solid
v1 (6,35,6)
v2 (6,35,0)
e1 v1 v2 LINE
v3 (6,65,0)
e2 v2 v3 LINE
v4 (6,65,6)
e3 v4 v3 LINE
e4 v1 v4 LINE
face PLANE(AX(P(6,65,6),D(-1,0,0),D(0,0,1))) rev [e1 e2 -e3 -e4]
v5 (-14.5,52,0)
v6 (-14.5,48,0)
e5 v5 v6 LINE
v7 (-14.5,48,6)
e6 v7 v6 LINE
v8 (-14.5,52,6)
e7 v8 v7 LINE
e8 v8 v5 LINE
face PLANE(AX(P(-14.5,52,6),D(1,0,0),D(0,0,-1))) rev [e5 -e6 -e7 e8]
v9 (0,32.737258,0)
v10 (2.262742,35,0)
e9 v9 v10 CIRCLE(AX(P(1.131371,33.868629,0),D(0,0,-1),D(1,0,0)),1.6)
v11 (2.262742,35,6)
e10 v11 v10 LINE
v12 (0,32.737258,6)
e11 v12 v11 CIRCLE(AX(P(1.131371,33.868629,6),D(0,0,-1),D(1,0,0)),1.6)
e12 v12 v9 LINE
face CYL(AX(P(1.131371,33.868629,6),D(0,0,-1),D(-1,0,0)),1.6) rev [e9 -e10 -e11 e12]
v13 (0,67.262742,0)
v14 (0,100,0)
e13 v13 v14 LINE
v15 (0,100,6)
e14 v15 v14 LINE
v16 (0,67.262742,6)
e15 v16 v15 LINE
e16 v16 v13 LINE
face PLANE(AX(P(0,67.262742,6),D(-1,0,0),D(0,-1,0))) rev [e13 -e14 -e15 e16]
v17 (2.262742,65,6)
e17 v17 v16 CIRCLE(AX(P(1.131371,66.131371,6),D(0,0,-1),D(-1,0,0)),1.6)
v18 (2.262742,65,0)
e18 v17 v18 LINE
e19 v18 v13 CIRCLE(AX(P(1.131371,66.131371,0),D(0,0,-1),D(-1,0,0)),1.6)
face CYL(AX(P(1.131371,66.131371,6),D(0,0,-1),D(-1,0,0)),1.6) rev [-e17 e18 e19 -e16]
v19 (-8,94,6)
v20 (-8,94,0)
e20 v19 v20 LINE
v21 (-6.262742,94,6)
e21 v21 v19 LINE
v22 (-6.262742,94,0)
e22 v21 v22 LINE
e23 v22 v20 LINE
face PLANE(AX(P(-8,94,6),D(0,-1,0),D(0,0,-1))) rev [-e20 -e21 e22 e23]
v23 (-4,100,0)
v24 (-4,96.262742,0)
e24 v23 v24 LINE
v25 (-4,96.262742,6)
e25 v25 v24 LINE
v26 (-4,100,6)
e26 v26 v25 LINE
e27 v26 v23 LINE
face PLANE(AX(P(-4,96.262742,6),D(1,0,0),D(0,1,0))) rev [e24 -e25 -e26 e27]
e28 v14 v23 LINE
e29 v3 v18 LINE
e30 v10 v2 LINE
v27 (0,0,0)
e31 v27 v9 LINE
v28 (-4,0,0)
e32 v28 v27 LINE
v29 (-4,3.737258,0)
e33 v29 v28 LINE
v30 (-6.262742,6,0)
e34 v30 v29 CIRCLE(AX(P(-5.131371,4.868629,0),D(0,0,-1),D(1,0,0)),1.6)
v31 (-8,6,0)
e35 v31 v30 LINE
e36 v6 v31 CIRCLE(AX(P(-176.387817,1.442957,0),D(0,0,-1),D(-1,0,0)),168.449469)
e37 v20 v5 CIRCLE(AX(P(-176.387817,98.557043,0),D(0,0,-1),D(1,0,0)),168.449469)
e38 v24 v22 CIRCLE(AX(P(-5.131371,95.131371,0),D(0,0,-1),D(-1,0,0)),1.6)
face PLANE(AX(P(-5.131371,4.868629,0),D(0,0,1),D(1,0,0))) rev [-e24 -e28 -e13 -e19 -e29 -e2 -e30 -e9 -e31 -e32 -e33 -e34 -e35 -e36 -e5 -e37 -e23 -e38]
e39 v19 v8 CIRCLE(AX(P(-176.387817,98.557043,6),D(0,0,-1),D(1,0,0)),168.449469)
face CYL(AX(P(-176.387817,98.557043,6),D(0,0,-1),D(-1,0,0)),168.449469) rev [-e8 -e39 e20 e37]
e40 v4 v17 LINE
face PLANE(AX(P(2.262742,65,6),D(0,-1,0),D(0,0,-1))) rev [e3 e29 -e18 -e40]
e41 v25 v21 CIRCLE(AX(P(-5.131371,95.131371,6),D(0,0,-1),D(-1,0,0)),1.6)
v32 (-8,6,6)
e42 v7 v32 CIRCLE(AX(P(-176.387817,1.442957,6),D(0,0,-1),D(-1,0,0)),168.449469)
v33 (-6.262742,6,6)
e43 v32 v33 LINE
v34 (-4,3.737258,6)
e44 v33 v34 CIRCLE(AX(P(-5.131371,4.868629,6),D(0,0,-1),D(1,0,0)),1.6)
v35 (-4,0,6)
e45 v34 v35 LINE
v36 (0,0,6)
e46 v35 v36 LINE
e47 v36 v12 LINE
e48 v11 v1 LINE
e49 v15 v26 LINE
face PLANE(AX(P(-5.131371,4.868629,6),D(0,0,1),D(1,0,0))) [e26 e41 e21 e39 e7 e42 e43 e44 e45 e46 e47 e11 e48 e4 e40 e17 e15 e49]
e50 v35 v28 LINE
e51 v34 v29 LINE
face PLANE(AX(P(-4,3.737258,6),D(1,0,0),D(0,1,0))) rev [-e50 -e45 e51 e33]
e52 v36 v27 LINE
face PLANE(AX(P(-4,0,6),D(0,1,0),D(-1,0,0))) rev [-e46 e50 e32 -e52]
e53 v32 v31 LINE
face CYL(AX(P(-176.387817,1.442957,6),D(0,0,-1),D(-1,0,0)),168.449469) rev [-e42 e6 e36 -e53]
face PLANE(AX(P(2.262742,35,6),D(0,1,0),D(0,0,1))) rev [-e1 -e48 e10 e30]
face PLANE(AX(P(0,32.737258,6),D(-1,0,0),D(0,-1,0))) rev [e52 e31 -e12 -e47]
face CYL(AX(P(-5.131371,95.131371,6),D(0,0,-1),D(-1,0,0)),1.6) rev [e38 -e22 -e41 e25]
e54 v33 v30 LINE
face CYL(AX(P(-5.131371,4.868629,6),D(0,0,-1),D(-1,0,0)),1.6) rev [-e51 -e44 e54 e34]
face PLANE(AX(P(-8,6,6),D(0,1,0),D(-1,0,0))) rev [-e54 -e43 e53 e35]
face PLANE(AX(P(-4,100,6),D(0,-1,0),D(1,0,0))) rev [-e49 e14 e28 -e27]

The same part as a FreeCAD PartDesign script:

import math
import FreeCAD as App
import Part
import Sketcher

V = App.Vector

doc = App.newDocument("Part")
body = doc.addObject("PartDesign::Body", "Body")

sketch1 = body.newObject("Sketcher::SketchObject", "Sketch")
sketch1.AttachmentSupport = (doc.getObject("XY_Plane"), [""])
sketch1.MapMode = "FlatFace"
sketch1.addGeometry(Part.LineSegment(V(-14.5, 52, 0), V(-14.5, 48, 0)), False)
sketch1.addGeometry(Part.ArcOfCircle(Part.Circle(V(-176.4, 1.4, 0), V(0, 0, 1), 168.4), math.radians(1.55), math.radians(16.04)), False)
sketch1.addGeometry(Part.LineSegment(V(-8, 6, 0), V(-6.3, 6, 0)), False)
sketch1.addGeometry(Part.ArcOfCircle(Part.Circle(V(-5.1, 4.9, 0), V(0, 0, 1), 1.6), math.radians(-45), math.radians(135)), False)
sketch1.addGeometry(Part.LineSegment(V(-4, 3.7, 0), V(-4, 0, 0)), False)
sketch1.addGeometry(Part.LineSegment(V(-4, 0, 0), V(0, 0, 0)), False)
sketch1.addGeometry(Part.LineSegment(V(0, 0, 0), V(0, 32.7, 0)), False)
sketch1.addGeometry(Part.ArcOfCircle(Part.Circle(V(1.1, 33.9, 0), V(0, 0, 1), 1.6), math.radians(45), math.radians(225)), False)
sketch1.addGeometry(Part.LineSegment(V(2.3, 35, 0), V(6, 35, 0)), False)
sketch1.addGeometry(Part.LineSegment(V(6, 35, 0), V(6, 65, 0)), False)
sketch1.addGeometry(Part.LineSegment(V(6, 65, 0), V(2.3, 65, 0)), False)
sketch1.addGeometry(Part.ArcOfCircle(Part.Circle(V(1.1, 66.1, 0), V(0, 0, 1), 1.6), math.radians(135), math.radians(315)), False)
sketch1.addGeometry(Part.LineSegment(V(0, 67.3, 0), V(0, 100, 0)), False)
sketch1.addGeometry(Part.LineSegment(V(0, 100, 0), V(-4, 100, 0)), False)
sketch1.addGeometry(Part.LineSegment(V(-4, 100, 0), V(-4, 96.3, 0)), False)
sketch1.addGeometry(Part.ArcOfCircle(Part.Circle(V(-5.1, 95.1, 0), V(0, 0, 1), 1.6), math.radians(-135), math.radians(45)), False)
sketch1.addGeometry(Part.LineSegment(V(-6.3, 94, 0), V(-8, 94, 0)), False)
sketch1.addGeometry(Part.ArcOfCircle(Part.Circle(V(-176.4, 98.6, 0), V(0, 0, 1), 168.4), math.radians(-16.04), math.radians(-1.55)), False)
sketch1.addConstraint(Sketcher.Constraint("Coincident", 0, 2, 1, 2))
sketch1.addConstraint(Sketcher.Constraint("Coincident", 1, 1, 2, 1))
sketch1.addConstraint(Sketcher.Constraint("Coincident", 2, 2, 3, 2))
sketch1.addConstraint(Sketcher.Constraint("Coincident", 3, 1, 4, 1))
sketch1.addConstraint(Sketcher.Constraint("Coincident", 4, 2, 5, 1))
sketch1.addConstraint(Sketcher.Constraint("Coincident", 5, 2, 6, 1))
sketch1.addConstraint(Sketcher.Constraint("Coincident", 6, 2, 7, 2))
sketch1.addConstraint(Sketcher.Constraint("Coincident", 7, 1, 8, 1))
sketch1.addConstraint(Sketcher.Constraint("Coincident", 8, 2, 9, 1))
sketch1.addConstraint(Sketcher.Constraint("Coincident", 9, 2, 10, 1))
sketch1.addConstraint(Sketcher.Constraint("Coincident", 10, 2, 11, 2))
sketch1.addConstraint(Sketcher.Constraint("Coincident", 11, 1, 12, 1))
sketch1.addConstraint(Sketcher.Constraint("Coincident", 12, 2, 13, 1))
sketch1.addConstraint(Sketcher.Constraint("Coincident", 13, 2, 14, 1))
sketch1.addConstraint(Sketcher.Constraint("Coincident", 14, 2, 15, 2))
sketch1.addConstraint(Sketcher.Constraint("Coincident", 15, 1, 16, 1))
sketch1.addConstraint(Sketcher.Constraint("Coincident", 16, 2, 17, 2))
sketch1.addConstraint(Sketcher.Constraint("Coincident", 17, 1, 0, 1))
sketch1.addConstraint(Sketcher.Constraint("Vertical", 0))
sketch1.addConstraint(Sketcher.Constraint("Horizontal", 2))
sketch1.addConstraint(Sketcher.Constraint("Vertical", 4))
sketch1.addConstraint(Sketcher.Constraint("Horizontal", 5))
sketch1.addConstraint(Sketcher.Constraint("Vertical", 6))
sketch1.addConstraint(Sketcher.Constraint("Horizontal", 8))
sketch1.addConstraint(Sketcher.Constraint("Vertical", 9))
sketch1.addConstraint(Sketcher.Constraint("Horizontal", 10))
sketch1.addConstraint(Sketcher.Constraint("Vertical", 12))
sketch1.addConstraint(Sketcher.Constraint("Horizontal", 13))
sketch1.addConstraint(Sketcher.Constraint("Vertical", 14))
sketch1.addConstraint(Sketcher.Constraint("Horizontal", 16))
sketch1.addConstraint(Sketcher.Constraint("Coincident", 5, 2, -1, 1))
sketch1.addConstraint(Sketcher.Constraint("Equal", 3, 7))
sketch1.addConstraint(Sketcher.Constraint("Equal", 7, 11))
sketch1.addConstraint(Sketcher.Constraint("Equal", 11, 15))
sketch1.addConstraint(Sketcher.Constraint("Equal", 1, 17))
sketch1.addConstraint(Sketcher.Constraint("PointOnObject", 11, 1, -2))
sketch1.addConstraint(Sketcher.Constraint("Vertical", 7, 3, 11, 3))
sketch1.addConstraint(Sketcher.Constraint("Vertical", 3, 3, 15, 3))
sketch1.addConstraint(Sketcher.Constraint("Vertical", 1, 3, 17, 3))
sketch1.addConstraint(Sketcher.Constraint("Vertical", 7, 1, 10, 2))
sketch1.addConstraint(Sketcher.Constraint("Vertical", 4, 2, 13, 2))
sketch1.addConstraint(Sketcher.Constraint("Vertical", 2, 2, 15, 1))
sketch1.addConstraint(Sketcher.Constraint("Vertical", 1, 1, 16, 2))
sketch1.addConstraint(Sketcher.Constraint("Equal", 13, 0))
sketch1.addConstraint(Sketcher.Constraint("Equal", 10, 4))
sketch1.addConstraint(Sketcher.Constraint("Equal", 6, 12))
sketch1.addConstraint(Sketcher.Constraint("Equal", 4, 14))
sketch1.addConstraint(Sketcher.Constraint("Radius", 3, 1.6))
sketch1.addConstraint(Sketcher.Constraint("DistanceX", 5, 1, 5, 2, 4.0))
sketch1.addConstraint(Sketcher.Constraint("DistanceY", 9, 1, 9, 2, 30.0))
sketch1.addConstraint(Sketcher.Constraint("DistanceY", -1, 1, 0, 2, 48.0))
sketch1.addConstraint(Sketcher.Constraint("DistanceX", 1, 1, -1, 1, 8.0))
sketch1.addConstraint(Sketcher.Constraint("DistanceY", -1, 1, 1, 1, 6.0))
sketch1.addConstraint(Sketcher.Constraint("DistanceX", -1, 1, 8, 2, 6.0))
sketch1.addConstraint(Sketcher.Constraint("DistanceY", 3, 3, 7, 3, 29.0))
sketch1.addConstraint(Sketcher.Constraint("DistanceY", 11, 1, 14, 2, 29.0))
sketch1.addConstraint(Sketcher.Constraint("DistanceX", 0, 2, -1, 1, 14.5))
sketch1.addConstraint(Sketcher.Constraint("Radius", 1, 168.449469))
sketch1.addConstraint(Sketcher.Constraint("DistanceX", 3, 3, -1, 1, 5.131371))
pad1 = body.newObject("PartDesign::Pad", "Pad")
pad1.Profile = sketch1
pad1.Length = 6

doc.recompute()
